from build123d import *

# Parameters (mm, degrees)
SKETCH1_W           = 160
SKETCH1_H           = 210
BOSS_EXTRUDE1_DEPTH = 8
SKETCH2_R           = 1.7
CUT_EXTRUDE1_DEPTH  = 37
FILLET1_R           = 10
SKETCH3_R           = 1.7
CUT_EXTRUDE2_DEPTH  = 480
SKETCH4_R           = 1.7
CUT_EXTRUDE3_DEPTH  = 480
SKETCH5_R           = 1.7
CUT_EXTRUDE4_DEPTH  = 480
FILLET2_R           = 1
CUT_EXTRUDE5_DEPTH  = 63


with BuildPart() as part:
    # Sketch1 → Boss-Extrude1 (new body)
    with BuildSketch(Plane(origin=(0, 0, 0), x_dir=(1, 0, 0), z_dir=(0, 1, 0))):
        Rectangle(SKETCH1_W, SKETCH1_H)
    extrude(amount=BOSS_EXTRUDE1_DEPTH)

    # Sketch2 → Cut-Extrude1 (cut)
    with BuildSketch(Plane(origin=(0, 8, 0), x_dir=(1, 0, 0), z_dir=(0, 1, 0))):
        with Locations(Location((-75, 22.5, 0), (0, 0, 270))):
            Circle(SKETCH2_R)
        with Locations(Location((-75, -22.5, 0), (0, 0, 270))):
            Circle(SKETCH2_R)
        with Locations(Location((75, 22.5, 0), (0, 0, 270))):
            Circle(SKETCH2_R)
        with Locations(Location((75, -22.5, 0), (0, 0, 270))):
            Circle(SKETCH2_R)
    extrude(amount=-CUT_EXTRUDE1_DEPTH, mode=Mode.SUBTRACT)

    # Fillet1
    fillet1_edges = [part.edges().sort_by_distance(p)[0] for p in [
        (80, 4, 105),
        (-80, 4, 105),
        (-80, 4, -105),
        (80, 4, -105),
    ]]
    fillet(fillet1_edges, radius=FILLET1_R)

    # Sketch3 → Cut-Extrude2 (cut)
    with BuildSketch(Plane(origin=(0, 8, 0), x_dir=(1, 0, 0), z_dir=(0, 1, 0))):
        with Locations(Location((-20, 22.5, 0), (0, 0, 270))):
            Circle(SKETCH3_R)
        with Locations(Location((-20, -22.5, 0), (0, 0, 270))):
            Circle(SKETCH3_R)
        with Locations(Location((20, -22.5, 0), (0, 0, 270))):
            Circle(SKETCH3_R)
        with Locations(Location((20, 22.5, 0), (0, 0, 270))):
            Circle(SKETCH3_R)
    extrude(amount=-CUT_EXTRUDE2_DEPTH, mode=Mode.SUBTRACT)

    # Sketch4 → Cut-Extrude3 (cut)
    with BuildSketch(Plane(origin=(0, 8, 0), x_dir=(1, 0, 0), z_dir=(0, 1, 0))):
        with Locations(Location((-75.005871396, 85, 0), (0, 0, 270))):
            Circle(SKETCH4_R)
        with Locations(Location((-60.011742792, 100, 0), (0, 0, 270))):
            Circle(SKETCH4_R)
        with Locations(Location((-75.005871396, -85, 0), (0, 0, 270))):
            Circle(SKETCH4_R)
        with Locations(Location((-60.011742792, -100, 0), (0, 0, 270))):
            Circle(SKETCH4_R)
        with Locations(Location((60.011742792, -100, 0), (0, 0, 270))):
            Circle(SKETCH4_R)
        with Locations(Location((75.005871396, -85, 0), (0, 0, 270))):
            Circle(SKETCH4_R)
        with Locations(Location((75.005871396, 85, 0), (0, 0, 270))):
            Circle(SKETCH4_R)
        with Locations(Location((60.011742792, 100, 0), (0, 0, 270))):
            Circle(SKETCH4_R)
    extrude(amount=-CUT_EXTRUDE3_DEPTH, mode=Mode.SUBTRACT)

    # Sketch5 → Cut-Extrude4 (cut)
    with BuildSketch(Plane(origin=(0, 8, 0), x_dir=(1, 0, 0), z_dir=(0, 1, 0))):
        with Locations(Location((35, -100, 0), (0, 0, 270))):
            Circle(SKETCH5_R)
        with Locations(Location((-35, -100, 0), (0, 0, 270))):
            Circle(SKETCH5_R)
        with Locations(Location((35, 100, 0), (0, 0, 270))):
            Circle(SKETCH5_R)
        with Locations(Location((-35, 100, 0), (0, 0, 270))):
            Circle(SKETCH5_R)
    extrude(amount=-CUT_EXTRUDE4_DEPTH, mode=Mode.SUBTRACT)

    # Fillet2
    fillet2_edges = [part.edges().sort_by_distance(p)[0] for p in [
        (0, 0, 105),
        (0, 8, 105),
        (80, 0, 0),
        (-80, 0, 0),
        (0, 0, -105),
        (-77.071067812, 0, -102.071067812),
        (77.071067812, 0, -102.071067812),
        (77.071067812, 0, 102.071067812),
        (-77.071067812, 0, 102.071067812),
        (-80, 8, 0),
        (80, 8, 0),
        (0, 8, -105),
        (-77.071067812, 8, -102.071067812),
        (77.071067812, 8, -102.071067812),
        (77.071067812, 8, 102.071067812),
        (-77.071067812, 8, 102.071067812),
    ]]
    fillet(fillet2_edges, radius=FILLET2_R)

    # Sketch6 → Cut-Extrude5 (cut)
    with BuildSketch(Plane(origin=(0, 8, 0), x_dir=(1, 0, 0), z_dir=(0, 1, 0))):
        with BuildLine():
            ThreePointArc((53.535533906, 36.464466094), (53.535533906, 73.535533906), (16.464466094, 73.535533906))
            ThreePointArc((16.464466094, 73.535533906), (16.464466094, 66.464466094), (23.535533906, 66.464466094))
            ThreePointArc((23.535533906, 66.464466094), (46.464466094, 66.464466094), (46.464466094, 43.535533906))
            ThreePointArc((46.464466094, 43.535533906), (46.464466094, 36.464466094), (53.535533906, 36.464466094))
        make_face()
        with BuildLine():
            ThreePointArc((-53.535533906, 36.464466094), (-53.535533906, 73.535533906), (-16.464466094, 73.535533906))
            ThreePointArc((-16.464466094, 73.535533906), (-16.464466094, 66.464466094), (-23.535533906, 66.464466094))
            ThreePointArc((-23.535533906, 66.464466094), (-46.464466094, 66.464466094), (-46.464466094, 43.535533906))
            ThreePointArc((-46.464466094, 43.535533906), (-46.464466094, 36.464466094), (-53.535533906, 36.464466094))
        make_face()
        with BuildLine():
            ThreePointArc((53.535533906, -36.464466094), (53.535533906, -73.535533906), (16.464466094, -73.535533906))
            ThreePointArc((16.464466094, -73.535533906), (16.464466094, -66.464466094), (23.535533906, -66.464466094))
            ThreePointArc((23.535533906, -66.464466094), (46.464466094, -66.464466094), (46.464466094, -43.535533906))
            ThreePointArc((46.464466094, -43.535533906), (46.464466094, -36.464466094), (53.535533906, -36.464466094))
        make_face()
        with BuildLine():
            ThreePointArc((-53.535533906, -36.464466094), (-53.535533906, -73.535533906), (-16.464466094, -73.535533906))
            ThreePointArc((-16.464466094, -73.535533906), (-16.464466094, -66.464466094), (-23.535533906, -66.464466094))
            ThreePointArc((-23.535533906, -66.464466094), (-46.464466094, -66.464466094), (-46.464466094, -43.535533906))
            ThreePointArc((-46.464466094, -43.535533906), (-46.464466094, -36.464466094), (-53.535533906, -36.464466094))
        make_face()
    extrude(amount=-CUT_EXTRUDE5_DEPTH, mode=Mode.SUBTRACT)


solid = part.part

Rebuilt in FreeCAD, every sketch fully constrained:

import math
import FreeCAD as App
import Part
import Sketcher
from FreeCAD import Vector
Q = App.Units.Quantity


def edges_at(feature, points):
    """Names of the edges that pass closest to the given points."""
    edges = feature.Shape.Edges
    near = lambda p: min(range(len(edges)), key=lambda i: edges[i].distToShape(Part.Vertex(*p))[0])
    return sorted({f"Edge{near(p) + 1}" for p in points})

doc = App.newDocument("Part")
params = doc.addObject("Spreadsheet::Sheet", "Params")
for row, (alias, value) in enumerate([
    ("sketch1_width", "160 mm"),
    ("sketch1_height", "210 mm"),
    ("pad1_length", "8 mm"),
    ("sketch2_diameter", "3.4 mm"),
    ("pocket1_length", "37 mm"),
    ("fillet_radius", "10 mm"),
    ("sketch3_diameter", "3.4 mm"),
    ("pocket2_length", "480 mm"),
    ("sketch4_diameter", "3.4 mm"),
    ("pocket3_length", "480 mm"),
    ("sketch5_diameter", "3.4 mm"),
    ("pocket4_length", "480 mm"),
    ("fillet2_radius", "1 mm"),
    ("sketch6_radius", "5 mm"),
    ("pocket5_length", "63 mm"),
], start=1):
    params.set(f"A{row}", alias)
    params.set(f"B{row}", "=" + value)
    params.setAlias(f"B{row}", alias)

body = doc.addObject("PartDesign::Body", "Body")

sketch1 = body.newObject("Sketcher::SketchObject", "Sketch")
sketch1.AttachmentSupport = (doc.getObject("XZ_Plane"), [""])
sketch1.MapMode = "FlatFace"
sketch1.addGeometry([
    Part.LineSegment(Vector(-80, -105, 0), Vector(-80, 105, 0)),
    Part.LineSegment(Vector(-80, 105, 0), Vector(80, 105, 0)),
    Part.LineSegment(Vector(80, 105, 0), Vector(80, -105, 0)),
    Part.LineSegment(Vector(80, -105, 0), Vector(-80, -105, 0)),
], False)
sketch1.addConstraint([
    Sketcher.Constraint("Coincident", 0, 2, 1, 1),
    Sketcher.Constraint("Coincident", 1, 2, 2, 1),
    Sketcher.Constraint("Coincident", 2, 2, 3, 1),
    Sketcher.Constraint("Coincident", 3, 2, 0, 1),
    Sketcher.Constraint("Vertical", 0),
    Sketcher.Constraint("Horizontal", 1),
    Sketcher.Constraint("Vertical", 2),
    Sketcher.Constraint("Horizontal", 3),
    Sketcher.Constraint("Symmetric", 0, 2, 2, 2, -1, 1),
    Sketcher.Constraint("DistanceX", 1, 1, 1, 2, Q("160 mm")),
    Sketcher.Constraint("DistanceY", 0, 1, 0, 2, Q("210 mm")),
])
sketch1.setExpression("Constraints[9]", "Params.sketch1_width")
sketch1.setExpression("Constraints[10]", "Params.sketch1_height")
pad1 = body.newObject("PartDesign::Pad", "Pad")
pad1.Profile = sketch1
pad1.setExpression("Length", "Params.pad1_length")
pad1.Reversed = True

sketch2 = body.newObject("Sketcher::SketchObject", "Sketch001")
sketch2.AttachmentSupport = (doc.getObject("XZ_Plane"), [""])
sketch2.MapMode = "FlatFace"
sketch2.AttachmentOffset = App.Placement(Vector(0, 0, -8), App.Rotation())
sketch2.addGeometry([
    Part.Circle(Vector(-75, -22.5, 0), Vector(0, 0, 1), 1.7),
    Part.Circle(Vector(-75, 22.5, 0), Vector(0, 0, 1), 1.7),
    Part.Circle(Vector(75, -22.5, 0), Vector(0, 0, 1), 1.7),
    Part.Circle(Vector(75, 22.5, 0), Vector(0, 0, 1), 1.7),
], False)
sketch2.addConstraint([
    Sketcher.Constraint("Equal", 0, 1),
    Sketcher.Constraint("Equal", 1, 2),
    Sketcher.Constraint("Equal", 2, 3),
    Sketcher.Constraint("Symmetric", 1, 3, 2, 3, -1, 1),
    Sketcher.Constraint("Symmetric", 0, 3, 3, 3, -1, 1),
    Sketcher.Constraint("Symmetric", 0, 3, 2, 3, -2),
    Sketcher.Constraint("Diameter", 0, Q("3.4 mm")),
    Sketcher.Constraint("DistanceX", 0, 3, -1, 1, Q("75 mm")),
    Sketcher.Constraint("DistanceY", 0, 3, 1, 3, Q("45 mm")),
])
sketch2.setExpression("Constraints[6]", "Params.sketch2_diameter")
pocket1 = body.newObject("PartDesign::Pocket", "Pocket")
pocket1.Profile = sketch2
pocket1.setExpression("Length", "Params.pocket1_length")
pocket1.Reversed = True
doc.recompute()

fillet = body.newObject("PartDesign::Fillet", "Fillet")
fillet.Base = (pocket1, edges_at(pocket1, [
    (80, 4, 105),
    (-80, 4, 105),
    (-80, 4, -105),
    (80, 4, -105),
]))
fillet.setExpression("Radius", "Params.fillet_radius")

sketch3 = body.newObject("Sketcher::SketchObject", "Sketch002")
sketch3.AttachmentSupport = (doc.getObject("XZ_Plane"), [""])
sketch3.MapMode = "FlatFace"
sketch3.AttachmentOffset = App.Placement(Vector(0, 0, -8), App.Rotation())
sketch3.addGeometry([
    Part.Circle(Vector(-20, -22.5, 0), Vector(0, 0, 1), 1.7),
    Part.Circle(Vector(-20, 22.5, 0), Vector(0, 0, 1), 1.7),
    Part.Circle(Vector(20, 22.5, 0), Vector(0, 0, 1), 1.7),
    Part.Circle(Vector(20, -22.5, 0), Vector(0, 0, 1), 1.7),
], False)
sketch3.addConstraint([
    Sketcher.Constraint("Equal", 0, 1),
    Sketcher.Constraint("Equal", 1, 2),
    Sketcher.Constraint("Equal", 2, 3),
    Sketcher.Constraint("Symmetric", 0, 3, 2, 3, -1, 1),
    Sketcher.Constraint("Symmetric", 1, 3, 3, 3, -1, 1),
    Sketcher.Constraint("Symmetric", 1, 3, 2, 3, -2),
    Sketcher.Constraint("Diameter", 0, Q("3.4 mm")),
    Sketcher.Constraint("DistanceX", 0, 3, -1, 1, Q("20 mm")),
    Sketcher.Constraint("DistanceY", 0, 3, 1, 3, Q("45 mm")),
])
sketch3.setExpression("Constraints[6]", "Params.sketch3_diameter")
pocket2 = body.newObject("PartDesign::Pocket", "Pocket001")
pocket2.Profile = sketch3
pocket2.setExpression("Length", "Params.pocket2_length")
pocket2.Reversed = True

sketch4 = body.newObject("Sketcher::SketchObject", "Sketch003")
sketch4.AttachmentSupport = (doc.getObject("XZ_Plane"), [""])
sketch4.MapMode = "FlatFace"
sketch4.AttachmentOffset = App.Placement(Vector(0, 0, -8), App.Rotation())
sketch4.addGeometry([
    Part.Circle(Vector(-75.005871, -85, 0), Vector(0, 0, 1), 1.7),
    Part.Circle(Vector(-60.011743, -100, 0), Vector(0, 0, 1), 1.7),
    Part.Circle(Vector(-75.005871, 85, 0), Vector(0, 0, 1), 1.7),
    Part.Circle(Vector(-60.011743, 100, 0), Vector(0, 0, 1), 1.7),
    Part.Circle(Vector(60.011743, 100, 0), Vector(0, 0, 1), 1.7),
    Part.Circle(Vector(75.005871, 85, 0), Vector(0, 0, 1), 1.7),
    Part.Circle(Vector(75.005871, -85, 0), Vector(0, 0, 1), 1.7),
    Part.Circle(Vector(60.011743, -100, 0), Vector(0, 0, 1), 1.7),
], False)
sketch4.addConstraint([
    Sketcher.Constraint("Equal", 0, 1),
    Sketcher.Constraint("Equal", 1, 2),
    Sketcher.Constraint("Equal", 2, 3),
    Sketcher.Constraint("Equal", 3, 4),
    Sketcher.Constraint("Equal", 4, 5),
    Sketcher.Constraint("Equal", 5, 6),
    Sketcher.Constraint("Equal", 6, 7),
    Sketcher.Constraint("Symmetric", 1, 3, 4, 3, -1, 1),
    Sketcher.Constraint("Symmetric", 0, 3, 5, 3, -1, 1),
    Sketcher.Constraint("Symmetric", 2, 3, 6, 3, -1, 1),
    Sketcher.Constraint("Symmetric", 3, 3, 7, 3, -1, 1),
    Sketcher.Constraint("Symmetric", 3, 3, 4, 3, -2),
    Sketcher.Constraint("Symmetric", 2, 3, 5, 3, -2),
    Sketcher.Constraint("Diameter", 0, Q("3.4 mm")),
    Sketcher.Constraint("DistanceY", 0, 3, -1, 1, Q("85 mm")),
    Sketcher.Constraint("DistanceY", 1, 3, -1, 1, Q("100 mm")),
    Sketcher.Constraint("DistanceX", 0, 3, -1, 1, Q("75.005871 mm")),
    Sketcher.Constraint("DistanceX", 0, 3, 1, 3, Q("14.994129 mm")),
])
sketch4.setExpression("Constraints[13]", "Params.sketch4_diameter")
pocket3 = body.newObject("PartDesign::Pocket", "Pocket002")
pocket3.Profile = sketch4
pocket3.setExpression("Length", "Params.pocket3_length")
pocket3.Reversed = True

sketch5 = body.newObject("Sketcher::SketchObject", "Sketch004")
sketch5.AttachmentSupport = (doc.getObject("XZ_Plane"), [""])
sketch5.MapMode = "FlatFace"
sketch5.AttachmentOffset = App.Placement(Vector(0, 0, -8), App.Rotation())
sketch5.addGeometry([
    Part.Circle(Vector(35, 100, 0), Vector(0, 0, 1), 1.7),
    Part.Circle(Vector(-35, 100, 0), Vector(0, 0, 1), 1.7),
    Part.Circle(Vector(35, -100, 0), Vector(0, 0, 1), 1.7),
    Part.Circle(Vector(-35, -100, 0), Vector(0, 0, 1), 1.7),
], False)
sketch5.addConstraint([
    Sketcher.Constraint("Equal", 0, 1),
    Sketcher.Constraint("Equal", 1, 2),
    Sketcher.Constraint("Equal", 2, 3),
    Sketcher.Constraint("Symmetric", 1, 3, 2, 3, -1, 1),
    Sketcher.Constraint("Symmetric", 0, 3, 3, 3, -1, 1),
    Sketcher.Constraint("Symmetric", 0, 3, 1, 3, -2),
    Sketcher.Constraint("Diameter", 0, Q("3.4 mm")),
    Sketcher.Constraint("DistanceX", -1, 1, 0, 3, Q("35 mm")),
    Sketcher.Constraint("DistanceY", -1, 1, 0, 3, Q("100 mm")),
])
sketch5.setExpression("Constraints[6]", "Params.sketch5_diameter")
pocket4 = body.newObject("PartDesign::Pocket", "Pocket003")
pocket4.Profile = sketch5
pocket4.setExpression("Length", "Params.pocket4_length")
pocket4.Reversed = True
doc.recompute()

fillet2 = body.newObject("PartDesign::Fillet", "Fillet001")
fillet2.Base = (pocket4, edges_at(pocket4, [
    (0, 0, 105),
    (0, 8, 105),
    (80, 0, 0),
    (-80, 0, 0),
    (0, 0, -105),
    (-77.071, 0, -102.071),
    (77.071, 0, -102.071),
    (77.071, 0, 102.071),
    (-77.071, 0, 102.071),
    (-80, 8, 0),
    (80, 8, 0),
    (0, 8, -105),
    (-77.071, 8, -102.071),
    (77.071, 8, -102.071),
    (77.071, 8, 102.071),
    (-77.071, 8, 102.071),
]))
fillet2.setExpression("Radius", "Params.fillet2_radius")

sketch6 = body.newObject("Sketcher::SketchObject", "Sketch005")
sketch6.AttachmentSupport = (doc.getObject("XZ_Plane"), [""])
sketch6.MapMode = "FlatFace"
sketch6.AttachmentOffset = App.Placement(Vector(0, 0, -8), App.Rotation())
sketch6.addGeometry([
    Part.ArcOfCircle(Part.Circle(Vector(35, -55, 0), Vector(0, 0, 1), 26.213203), math.radians(-135), math.radians(45)),
    Part.ArcOfCircle(Part.Circle(Vector(20, -70, 0), Vector(0, 0, 1), 5), math.radians(45), math.radians(225)),
    Part.ArcOfCircle(Part.Circle(Vector(35, -55, 0), Vector(0, 0, 1), 16.213203), math.radians(-135), math.radians(45)),
    Part.ArcOfCircle(Part.Circle(Vector(50, -40, 0), Vector(0, 0, 1), 5), math.radians(45), math.radians(225)),
    Part.ArcOfCircle(Part.Circle(Vector(-35, -55, 0), Vector(0, 0, 1), 26.213203), math.radians(135), math.radians(315)),
    Part.ArcOfCircle(Part.Circle(Vector(-50, -40, 0), Vector(0, 0, 1), 5), math.radians(-45), math.radians(135)),
    Part.ArcOfCircle(Part.Circle(Vector(-35, -55, 0), Vector(0, 0, 1), 16.213203), math.radians(135), math.radians(315)),
    Part.ArcOfCircle(Part.Circle(Vector(-20, -70, 0), Vector(0, 0, 1), 5), math.radians(-45), math.radians(135)),
    Part.ArcOfCircle(Part.Circle(Vector(35, 55, 0), Vector(0, 0, 1), 26.213203), math.radians(-45), math.radians(135)),
    Part.ArcOfCircle(Part.Circle(Vector(50, 40, 0), Vector(0, 0, 1), 5), math.radians(135), math.radians(315)),
    Part.ArcOfCircle(Part.Circle(Vector(35, 55, 0), Vector(0, 0, 1), 16.213203), math.radians(-45), math.radians(135)),
    Part.ArcOfCircle(Part.Circle(Vector(20, 70, 0), Vector(0, 0, 1), 5), math.radians(135), math.radians(315)),
    Part.ArcOfCircle(Part.Circle(Vector(-35, 55, 0), Vector(0, 0, 1), 26.213203), math.radians(45), math.radians(225)),
    Part.ArcOfCircle(Part.Circle(Vector(-20, 70, 0), Vector(0, 0, 1), 5), math.radians(-135), math.radians(45)),
    Part.ArcOfCircle(Part.Circle(Vector(-35, 55, 0), Vector(0, 0, 1), 16.213203), math.radians(45), math.radians(225)),
    Part.ArcOfCircle(Part.Circle(Vector(-50, 40, 0), Vector(0, 0, 1), 5), math.radians(-135), math.radians(45)),
], False)
sketch6.addConstraint([
    Sketcher.Constraint("Tangent", 0, 1, 1, 2),
    Sketcher.Constraint("Tangent", 1, 1, 2, 1),
    Sketcher.Constraint("Tangent", 2, 2, 3, 2),
    Sketcher.Constraint("Tangent", 3, 1, 0, 2),
    Sketcher.Constraint("Tangent", 4, 1, 5, 2),
    Sketcher.Constraint("Tangent", 5, 1, 6, 1),
    Sketcher.Constraint("Tangent", 6, 2, 7, 2),
    Sketcher.Constraint("Tangent", 7, 1, 4, 2),
    Sketcher.Constraint("Tangent", 8, 1, 9, 2),
    Sketcher.Constraint("Tangent", 9, 1, 10, 1),
    Sketcher.Constraint("Tangent", 10, 2, 11, 2),
    Sketcher.Constraint("Tangent", 11, 1, 8, 2),
    Sketcher.Constraint("Tangent", 12, 1, 13, 2),
    Sketcher.Constraint("Tangent", 13, 1, 14, 1),
    Sketcher.Constraint("Tangent", 14, 2, 15, 2),
    Sketcher.Constraint("Tangent", 15, 1, 12, 2),
    Sketcher.Constraint("Coincident", 2, 3, 0, 3),
    Sketcher.Constraint("Coincident", 6, 3, 4, 3),
    Sketcher.Constraint("Coincident", 10, 3, 8, 3),
    Sketcher.Constraint("Coincident", 14, 3, 12, 3),
    Sketcher.Constraint("Equal", 0, 4),
    Sketcher.Constraint("Equal", 3, 5),
    Sketcher.Constraint("Equal", 4, 8),
    Sketcher.Constraint("Equal", 7, 9),
    Sketcher.Constraint("Equal", 8, 12),
    Sketcher.Constraint("Equal", 11, 13),
    Sketcher.Constraint("Symmetric", 4, 3, 8, 3, -1, 1),
    Sketcher.Constraint("Symmetric", 0, 3, 12, 3, -1, 1),
    Sketcher.Constraint("Symmetric", 0, 3, 4, 3, -2),
    Sketcher.Constraint("Horizontal", 3, 3, 5, 3),
    Sketcher.Constraint("Horizontal", 1, 3, 7, 3),
    Sketcher.Constraint("Horizontal", 11, 3, 13, 3),
    Sketcher.Constraint("Horizontal", 9, 3, 15, 3),
    Sketcher.Constraint("Vertical", 3, 3, 9, 3),
    Sketcher.Constraint("Vertical", 1, 3, 11, 3),
    Sketcher.Constraint("Radius", 1, Q("5 mm")),
    Sketcher.Constraint("DistanceX", -1, 1, 0, 3, Q("35 mm")),
    Sketcher.Constraint("DistanceY", 0, 3, -1, 1, Q("55 mm")),
    Sketcher.Constraint("DistanceX", -1, 1, 1, 3, Q("20 mm")),
    Sketcher.Constraint("DistanceY", 1, 3, -1, 1, Q("70 mm")),
    Sketcher.Constraint("DistanceX", -1, 1, 3, 3, Q("50 mm")),
])
sketch6.setExpression("Constraints[35]", "Params.sketch6_radius")
pocket5 = body.newObject("PartDesign::Pocket", "Pocket004")
pocket5.Profile = sketch6
pocket5.setExpression("Length", "Params.pocket5_length")
pocket5.Reversed = True

doc.recompute()
